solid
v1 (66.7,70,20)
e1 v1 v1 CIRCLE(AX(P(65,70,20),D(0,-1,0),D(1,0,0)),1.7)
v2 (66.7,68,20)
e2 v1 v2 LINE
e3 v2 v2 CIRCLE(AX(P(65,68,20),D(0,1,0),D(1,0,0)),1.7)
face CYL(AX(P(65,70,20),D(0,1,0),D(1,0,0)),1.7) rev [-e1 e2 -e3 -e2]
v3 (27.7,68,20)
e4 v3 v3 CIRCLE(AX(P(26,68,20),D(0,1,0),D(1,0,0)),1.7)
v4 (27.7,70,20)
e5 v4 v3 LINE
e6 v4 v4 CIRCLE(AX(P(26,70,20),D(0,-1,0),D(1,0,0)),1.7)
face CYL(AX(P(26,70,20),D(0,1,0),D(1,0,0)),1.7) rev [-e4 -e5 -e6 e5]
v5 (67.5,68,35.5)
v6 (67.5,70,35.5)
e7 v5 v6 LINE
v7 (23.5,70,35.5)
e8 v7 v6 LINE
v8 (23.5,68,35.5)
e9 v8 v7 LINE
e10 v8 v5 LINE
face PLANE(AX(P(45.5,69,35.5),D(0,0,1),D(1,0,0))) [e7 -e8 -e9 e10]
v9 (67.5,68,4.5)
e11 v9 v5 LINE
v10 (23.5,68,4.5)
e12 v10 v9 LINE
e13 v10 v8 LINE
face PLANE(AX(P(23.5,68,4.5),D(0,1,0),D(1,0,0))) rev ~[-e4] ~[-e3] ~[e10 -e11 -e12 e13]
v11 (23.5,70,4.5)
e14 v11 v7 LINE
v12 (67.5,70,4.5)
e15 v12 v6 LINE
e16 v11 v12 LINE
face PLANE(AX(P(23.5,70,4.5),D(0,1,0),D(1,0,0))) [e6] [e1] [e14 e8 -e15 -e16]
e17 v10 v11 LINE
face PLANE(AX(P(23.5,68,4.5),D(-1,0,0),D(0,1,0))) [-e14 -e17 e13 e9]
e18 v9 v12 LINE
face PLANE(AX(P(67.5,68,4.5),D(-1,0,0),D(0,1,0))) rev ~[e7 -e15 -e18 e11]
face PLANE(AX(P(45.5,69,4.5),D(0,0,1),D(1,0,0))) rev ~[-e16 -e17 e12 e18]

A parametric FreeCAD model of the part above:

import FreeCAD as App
import Part
import Sketcher

V = App.Vector


def add_polygon(sketch, points):
    """Adds a closed chain of lines whose ends are joined by coincident constraints."""
    first, n = sketch.GeometryCount, len(points)
    for a, b in zip(points, points[1:] + points[:1]):
        sketch.addGeometry(Part.LineSegment(App.Vector(*a, 0), App.Vector(*b, 0)), False)
    for i in range(n):
        sketch.addConstraint(Sketcher.Constraint("Coincident", first + i, 2, first + (i + 1) % n, 1))

doc = App.newDocument("Part")
body = doc.addObject("PartDesign::Body", "Body")

# Sketch on XY plane
sketch1 = body.newObject("Sketcher::SketchObject", "Sketch")
sketch1.AttachmentSupport = (doc.getObject("XY_Plane"), [""])
sketch1.MapMode = "FlatFace"
sketch1.addGeometry(Part.Circle(V(0, 0, 0), V(0, 0, 1), 1.7), False)
sketch1.addConstraint([
    Sketcher.Constraint("Coincident", 0, 3, -1, 1),
    Sketcher.Constraint("Diameter", 0, 3.4),
])
pad1 = body.newObject("PartDesign::Pad", "Pad")
pad1.Profile = sketch1
pad1.Length = 10
body2 = doc.addObject("PartDesign::Body", "Body001")
doc.recompute()

body.Placement = App.Placement(V(0, 0, 0), App.Rotation(V(1, 0, 0), 90))
boolean = body2.newObject("PartDesign::Boolean", "Boolean")
boolean.Type = "Fuse"
boolean.addObjects([body])
body3 = doc.addObject("PartDesign::Body", "Body002")
doc.recompute()

body2.Placement = App.Placement(V(26, 70, 20), App.Rotation(V(0, 0, 1), 0))
boolean2 = body3.newObject("PartDesign::Boolean", "Boolean001")
boolean2.Type = "Fuse"
boolean2.addObjects([body2])
body4 = doc.addObject("PartDesign::Body", "Body003")

# Sketch on XY plane
sketch2 = body4.newObject("Sketcher::SketchObject", "Sketch001")
sketch2.AttachmentSupport = (doc.getObject("XY_Plane003"), [""])
sketch2.MapMode = "FlatFace"
sketch2.addGeometry(Part.Circle(V(0, 0, 0), V(0, 0, 1), 1.7), False)
sketch2.addConstraint([
    Sketcher.Constraint("Coincident", 0, 3, -1, 1),
    Sketcher.Constraint("Diameter", 0, 3.4),
])
pad2 = body4.newObject("PartDesign::Pad", "Pad001")
pad2.Profile = sketch2
pad2.Length = 10
body5 = doc.addObject("PartDesign::Body", "Body004")
doc.recompute()

body4.Placement = App.Placement(V(0, 0, 0), App.Rotation(V(1, 0, 0), 90))
boolean3 = body5.newObject("PartDesign::Boolean", "Boolean002")
boolean3.Type = "Fuse"
boolean3.addObjects([body4])
body6 = doc.addObject("PartDesign::Body", "Body005")
doc.recompute()

body5.Placement = App.Placement(V(65, 70, 20), App.Rotation(V(0, 0, 1), 0))
boolean4 = body6.newObject("PartDesign::Boolean", "Boolean003")
boolean4.Type = "Fuse"
boolean4.addObjects([body5])
body7 = doc.addObject("PartDesign::Body", "Body006")

# Sketch on XY plane
sketch3 = body7.newObject("Sketcher::SketchObject", "Sketch002")
sketch3.AttachmentSupport = (doc.getObject("XY_Plane006"), [""])
sketch3.MapMode = "FlatFace"
sketch3.AttachmentOffset = App.Placement(V(0, 0, 4.5), App.Rotation())
add_polygon(sketch3, [(23.5, 70), (23.5, 68), (67.5, 68), (67.5, 70)])  # lines 0-3
sketch3.addConstraint([
    Sketcher.Constraint("Vertical", 0),
    Sketcher.Constraint("Horizontal", 1),
    Sketcher.Constraint("Vertical", 2),
    Sketcher.Constraint("Horizontal", 3),
    Sketcher.Constraint("DistanceX", 1, 1, 1, 2, 44.0),
    Sketcher.Constraint("DistanceY", 0, 2, 0, 1, 2.0),
    Sketcher.Constraint("DistanceY", -1, 1, 0, 2, 68.0),
    Sketcher.Constraint("DistanceX", -1, 1, 0, 2, 23.5),
])
pad3 = body7.newObject("PartDesign::Pad", "Pad002")
pad3.Profile = sketch3
pad3.Length = 31
doc.recompute()

boolean5 = body7.newObject("PartDesign::Boolean", "Boolean004")
boolean5.Type = "Cut"
boolean5.addObjects([body6])
doc.recompute()

boolean6 = body7.newObject("PartDesign::Boolean", "Boolean005")
boolean6.Type = "Cut"
boolean6.addObjects([body3])

doc.recompute()
